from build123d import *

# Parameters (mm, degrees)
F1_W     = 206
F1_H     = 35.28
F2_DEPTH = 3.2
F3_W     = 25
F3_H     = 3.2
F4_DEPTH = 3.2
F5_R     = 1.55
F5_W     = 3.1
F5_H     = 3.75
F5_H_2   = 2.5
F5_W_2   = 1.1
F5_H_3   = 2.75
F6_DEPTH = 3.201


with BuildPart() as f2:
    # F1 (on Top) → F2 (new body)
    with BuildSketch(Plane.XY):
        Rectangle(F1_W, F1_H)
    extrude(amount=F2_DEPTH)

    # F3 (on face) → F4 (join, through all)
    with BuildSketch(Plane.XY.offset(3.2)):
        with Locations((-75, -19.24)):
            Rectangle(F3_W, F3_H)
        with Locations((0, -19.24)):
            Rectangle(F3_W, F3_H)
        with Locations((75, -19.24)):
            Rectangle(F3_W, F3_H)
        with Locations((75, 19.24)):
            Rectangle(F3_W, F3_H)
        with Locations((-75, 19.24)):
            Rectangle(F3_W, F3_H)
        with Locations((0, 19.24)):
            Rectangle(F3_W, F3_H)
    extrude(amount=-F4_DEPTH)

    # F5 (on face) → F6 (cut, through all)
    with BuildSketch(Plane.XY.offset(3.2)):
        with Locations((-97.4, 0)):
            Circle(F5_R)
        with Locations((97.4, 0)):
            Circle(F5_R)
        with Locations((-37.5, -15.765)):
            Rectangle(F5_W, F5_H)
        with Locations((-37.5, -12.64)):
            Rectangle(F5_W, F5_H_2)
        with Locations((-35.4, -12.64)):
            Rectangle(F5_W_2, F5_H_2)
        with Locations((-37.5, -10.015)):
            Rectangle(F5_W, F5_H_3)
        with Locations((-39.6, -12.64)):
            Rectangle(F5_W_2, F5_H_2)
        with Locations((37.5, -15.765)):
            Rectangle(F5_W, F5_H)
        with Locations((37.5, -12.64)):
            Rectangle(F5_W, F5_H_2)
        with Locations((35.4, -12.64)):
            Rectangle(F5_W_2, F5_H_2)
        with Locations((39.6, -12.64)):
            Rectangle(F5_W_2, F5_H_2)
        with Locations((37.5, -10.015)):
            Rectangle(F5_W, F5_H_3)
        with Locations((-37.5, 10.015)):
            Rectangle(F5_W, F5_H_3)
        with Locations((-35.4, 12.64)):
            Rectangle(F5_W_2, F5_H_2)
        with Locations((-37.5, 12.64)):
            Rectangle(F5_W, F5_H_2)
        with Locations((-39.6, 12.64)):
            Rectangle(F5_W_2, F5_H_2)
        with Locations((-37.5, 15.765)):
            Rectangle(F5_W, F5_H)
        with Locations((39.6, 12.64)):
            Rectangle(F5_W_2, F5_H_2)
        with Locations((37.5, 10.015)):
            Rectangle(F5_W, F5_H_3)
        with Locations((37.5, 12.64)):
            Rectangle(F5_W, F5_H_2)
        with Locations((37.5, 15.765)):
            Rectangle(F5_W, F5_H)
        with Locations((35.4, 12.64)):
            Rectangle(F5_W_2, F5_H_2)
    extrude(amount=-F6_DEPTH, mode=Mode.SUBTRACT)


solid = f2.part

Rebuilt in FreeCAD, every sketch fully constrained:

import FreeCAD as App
import Part
import Sketcher
Q = App.Units.Quantity


def add_polygon(sketch, points):
    """Adds a closed chain of lines whose ends are joined by coincident constraints."""
    first, n = sketch.GeometryCount, len(points)
    for a, b in zip(points, points[1:] + points[:1]):
        sketch.addGeometry(Part.LineSegment(App.Vector(*a, 0), App.Vector(*b, 0)), False)
    for i in range(n):
        sketch.addConstraint(Sketcher.Constraint("Coincident", first + i, 2, first + (i + 1) % n, 1))

doc = App.newDocument("Part")
params = doc.addObject("Spreadsheet::Sheet", "Params")
for row, (alias, value) in enumerate([
    ("sketch1_width", "206 mm"),
    ("sketch1_height", "35.28 mm"),
    ("pad1_length", "3.2 mm"),
    ("sketch2_width", "25 mm"),
    ("sketch2_height", "3.2 mm"),
    ("sketch3_diameter", "3.1 mm"),
    ("sketch3_width", "3.1 mm"),
    ("sketch3_width2", "1.1 mm"),
    ("sketch3_height", "2.5 mm"),
    ("sketch3_height2", "3.75 mm"),
], start=1):
    params.set(f"A{row}", alias)
    params.set(f"B{row}", "=" + value)
    params.setAlias(f"B{row}", alias)

body = doc.addObject("PartDesign::Body", "Body")

# Sketch on XY plane
sketch1 = body.newObject("Sketcher::SketchObject", "Sketch")
sketch1.AttachmentSupport = (doc.getObject("XY_Plane"), [""])
sketch1.MapMode = "FlatFace"
add_polygon(sketch1, [(-103, 18), (-103, -18), (103, -18), (103, 18)])  # lines 0-3
sketch1.addConstraint(Sketcher.Constraint("Vertical", 0))
sketch1.addConstraint(Sketcher.Constraint("Horizontal", 1))
sketch1.addConstraint(Sketcher.Constraint("Vertical", 2))
sketch1.addConstraint(Sketcher.Constraint("Horizontal", 3))
sketch1.addConstraint(Sketcher.Constraint("Symmetric", 0, 2, 2, 2, -1, 1))
sketch1.addConstraint(Sketcher.Constraint("DistanceX", 1, 1, 1, 2, Q("206 mm")))
sketch1.addConstraint(Sketcher.Constraint("DistanceY", 0, 2, 0, 1, Q("35.28 mm")))
sketch1.setExpression("Constraints[9]", "Params.sketch1_width")
sketch1.setExpression("Constraints[10]", "Params.sketch1_height")
pad1 = body.newObject("PartDesign::Pad", "Pad")
pad1.Profile = sketch1
pad1.setExpression("Length", "Params.pad1_length")

# Sketch on XY plane
sketch2 = body.newObject("Sketcher::SketchObject", "Sketch001")
sketch2.AttachmentSupport = (doc.getObject("XY_Plane"), [""])
sketch2.MapMode = "FlatFace"
sketch2.AttachmentOffset = App.Placement(App.Vector(0, 0, 3.2), App.Rotation())
add_polygon(sketch2, [(-87.5, -17.6), (-87.5, -20.8), (-62.5, -20.8), (-62.5, -17.6)])  # lines 0-3
add_polygon(sketch2, [(-12.5, -17.6), (-12.5, -20.8), (12.5, -20.8), (12.5, -17.6)])  # lines 4-7
add_polygon(sketch2, [(62.5, -17.6), (62.5, -20.8), (87.5, -20.8), (87.5, -17.6)])  # lines 8-11
add_polygon(sketch2, [(62.5, 20.8), (62.5, 17.6), (87.5, 17.6), (87.5, 20.8)])  # lines 12-15
add_polygon(sketch2, [(-87.5, 20.8), (-87.5, 17.6), (-62.5, 17.6), (-62.5, 20.8)])  # lines 16-19
add_polygon(sketch2, [(-12.5, 20.8), (-12.5, 17.6), (12.5, 17.6), (12.5, 20.8)])  # lines 20-23
sketch2.addConstraint(Sketcher.Constraint("Vertical", 0))
sketch2.addConstraint(Sketcher.Constraint("Horizontal", 1))
sketch2.addConstraint(Sketcher.Constraint("Vertical", 2))
sketch2.addConstraint(Sketcher.Constraint("Horizontal", 3))
sketch2.addConstraint(Sketcher.Constraint("Vertical", 4))
sketch2.addConstraint(Sketcher.Constraint("Horizontal", 5))
sketch2.addConstraint(Sketcher.Constraint("Vertical", 6))
sketch2.addConstraint(Sketcher.Constraint("Horizontal", 7))
sketch2.addConstraint(Sketcher.Constraint("Vertical", 8))
sketch2.addConstraint(Sketcher.Constraint("Horizontal", 9))
sketch2.addConstraint(Sketcher.Constraint("Vertical", 10))
sketch2.addConstraint(Sketcher.Constraint("Horizontal", 11))
sketch2.addConstraint(Sketcher.Constraint("Vertical", 12))
sketch2.addConstraint(Sketcher.Constraint("Horizontal", 13))
sketch2.addConstraint(Sketcher.Constraint("Vertical", 14))
sketch2.addConstraint(Sketcher.Constraint("Horizontal", 15))
sketch2.addConstraint(Sketcher.Constraint("Vertical", 16))
sketch2.addConstraint(Sketcher.Constraint("Horizontal", 17))
sketch2.addConstraint(Sketcher.Constraint("Vertical", 18))
sketch2.addConstraint(Sketcher.Constraint("Horizontal", 19))
sketch2.addConstraint(Sketcher.Constraint("Vertical", 20))
sketch2.addConstraint(Sketcher.Constraint("Horizontal", 21))
sketch2.addConstraint(Sketcher.Constraint("Vertical", 22))
sketch2.addConstraint(Sketcher.Constraint("Horizontal", 23))
sketch2.addConstraint(Sketcher.Constraint("Symmetric", 2, 2, 12, 2, -1, 1))
sketch2.addConstraint(Sketcher.Constraint("Symmetric", 0, 2, 14, 2, -1, 1))
sketch2.addConstraint(Sketcher.Constraint("Symmetric", 10, 2, 16, 2, -1, 1))
sketch2.addConstraint(Sketcher.Constraint("Symmetric", 8, 2, 18, 2, -1, 1))
sketch2.addConstraint(Sketcher.Constraint("Symmetric", 6, 2, 20, 2, -1, 1))
sketch2.addConstraint(Sketcher.Constraint("Symmetric", 4, 2, 22, 2, -1, 1))
sketch2.addConstraint(Sketcher.Constraint("Symmetric", 1, 2, 8, 2, -2))
sketch2.addConstraint(Sketcher.Constraint("Symmetric", 3, 2, 10, 2, -2))
sketch2.addConstraint(Sketcher.Constraint("Horizontal", 1, 2, 4, 2))
sketch2.addConstraint(Sketcher.Constraint("Horizontal", 3, 2, 6, 2))
sketch2.addConstraint(Sketcher.Constraint("Vertical", 7, 2, 20, 2))
sketch2.addConstraint(Sketcher.Constraint("Equal", 3, 5))
sketch2.addConstraint(Sketcher.Constraint("DistanceX", 1, 1, 1, 2, Q("25 mm")))
sketch2.addConstraint(Sketcher.Constraint("DistanceY", 0, 2, 0, 1, Q("3.2 mm")))
sketch2.addConstraint(Sketcher.Constraint("DistanceX", 1, 2, 4, 2, Q("50 mm")))
sketch2.addConstraint(Sketcher.Constraint("DistanceY", 0, 2, -1, 1, Q("20.84 mm")))
sketch2.setExpression("Constraints[60]", "Params.sketch2_width")
sketch2.setExpression("Constraints[61]", "Params.sketch2_height")
pad2 = body.newObject("PartDesign::Pad", "Pad001")
pad2.Profile = sketch2
pad2.Type = "UpToLast"
pad2.Reversed = True

# Sketch on XY plane
sketch3 = body.newObject("Sketcher::SketchObject", "Sketch002")
sketch3.AttachmentSupport = (doc.getObject("XY_Plane"), [""])
sketch3.MapMode = "FlatFace"
sketch3.AttachmentOffset = App.Placement(App.Vector(0, 0, 3.2), App.Rotation())
sketch3.addGeometry(Part.Circle(App.Vector(-97.4, 0, 0), App.Vector(0, 0, 1), 1.6), False)  # 0
sketch3.addGeometry(Part.Circle(App.Vector(97.4, 0, 0), App.Vector(0, 0, 1), 1.6), False)  # 1
add_polygon(sketch3, [(-39, -17.6), (-36, -17.6), (-36, -13.9), (-34.9, -13.9), (-34.9, -11.4), (-36, -11.4), (-36, -8.6), (-39, -8.6), (-39, -11.4), (-40.1, -11.4), (-40.1, -13.9), (-39, -13.9)])  # lines 2-13
add_polygon(sketch3, [(36, -17.6), (39, -17.6), (39, -13.9), (40.1, -13.9), (40.1, -11.4), (39, -11.4), (39, -8.6), (36, -8.6), (36, -11.4), (34.9, -11.4), (34.9, -13.9), (36, -13.9)])  # lines 14-25
add_polygon(sketch3, [(-39, 8.6), (-36, 8.6), (-36, 11.4), (-34.9, 11.4), (-34.9, 13.9), (-36, 13.9), (-36, 17.6), (-39, 17.6), (-39, 13.9), (-40.1, 13.9), (-40.1, 11.4), (-39, 11.4)])  # lines 26-37
add_polygon(sketch3, [(39, 11.4), (40.1, 11.4), (40.1, 13.9), (39, 13.9), (39, 17.6), (36, 17.6), (36, 13.9), (34.9, 13.9), (34.9, 11.4), (36, 11.4), (36, 8.6), (39, 8.6)])  # lines 38-49
sketch3.addConstraint(Sketcher.Constraint("Horizontal", 2))
sketch3.addConstraint(Sketcher.Constraint("Vertical", 3))
sketch3.addConstraint(Sketcher.Constraint("Horizontal", 4))
sketch3.addConstraint(Sketcher.Constraint("Vertical", 5))
sketch3.addConstraint(Sketcher.Constraint("Horizontal", 6))
sketch3.addConstraint(Sketcher.Constraint("Vertical", 7))
sketch3.addConstraint(Sketcher.Constraint("Horizontal", 8))
sketch3.addConstraint(Sketcher.Constraint("Vertical", 9))
sketch3.addConstraint(Sketcher.Constraint("Horizontal", 10))
sketch3.addConstraint(Sketcher.Constraint("Vertical", 11))
sketch3.addConstraint(Sketcher.Constraint("Horizontal", 12))
sketch3.addConstraint(Sketcher.Constraint("Vertical", 13))
sketch3.addConstraint(Sketcher.Constraint("Horizontal", 14))
sketch3.addConstraint(Sketcher.Constraint("Vertical", 15))
sketch3.addConstraint(Sketcher.Constraint("Horizontal", 16))
sketch3.addConstraint(Sketcher.Constraint("Vertical", 17))
sketch3.addConstraint(Sketcher.Constraint("Horizontal", 18))
sketch3.addConstraint(Sketcher.Constraint("Vertical", 19))
sketch3.addConstraint(Sketcher.Constraint("Horizontal", 20))
sketch3.addConstraint(Sketcher.Constraint("Vertical", 21))
sketch3.addConstraint(Sketcher.Constraint("Horizontal", 22))
sketch3.addConstraint(Sketcher.Constraint("Vertical", 23))
sketch3.addConstraint(Sketcher.Constraint("Horizontal", 24))
sketch3.addConstraint(Sketcher.Constraint("Vertical", 25))
sketch3.addConstraint(Sketcher.Constraint("Horizontal", 26))
sketch3.addConstraint(Sketcher.Constraint("Vertical", 27))
sketch3.addConstraint(Sketcher.Constraint("Horizontal", 28))
sketch3.addConstraint(Sketcher.Constraint("Vertical", 29))
sketch3.addConstraint(Sketcher.Constraint("Horizontal", 30))
sketch3.addConstraint(Sketcher.Constraint("Vertical", 31))
sketch3.addConstraint(Sketcher.Constraint("Horizontal", 32))
sketch3.addConstraint(Sketcher.Constraint("Vertical", 33))
sketch3.addConstraint(Sketcher.Constraint("Horizontal", 34))
sketch3.addConstraint(Sketcher.Constraint("Vertical", 35))
sketch3.addConstraint(Sketcher.Constraint("Horizontal", 36))
sketch3.addConstraint(Sketcher.Constraint("Vertical", 37))
sketch3.addConstraint(Sketcher.Constraint("Horizontal", 38))
sketch3.addConstraint(Sketcher.Constraint("Vertical", 39))
sketch3.addConstraint(Sketcher.Constraint("Horizontal", 40))
sketch3.addConstraint(Sketcher.Constraint("Vertical", 41))
sketch3.addConstraint(Sketcher.Constraint("Horizontal", 42))
sketch3.addConstraint(Sketcher.Constraint("Vertical", 43))
sketch3.addConstraint(Sketcher.Constraint("Horizontal", 44))
sketch3.addConstraint(Sketcher.Constraint("Vertical", 45))
sketch3.addConstraint(Sketcher.Constraint("Horizontal", 46))
sketch3.addConstraint(Sketcher.Constraint("Vertical", 47))
sketch3.addConstraint(Sketcher.Constraint("Horizontal", 48))
sketch3.addConstraint(Sketcher.Constraint("Vertical", 49))
sketch3.addConstraint(Sketcher.Constraint("Equal", 0, 1))
sketch3.addConstraint(Sketcher.Constraint("Symmetric", 0, 3, 1, 3, -1, 1))
sketch3.addConstraint(Sketcher.Constraint("Symmetric", 20, 2, 26, 2, -1, 1))
sketch3.addConstraint(Sketcher.Constraint("Symmetric", 22, 2, 28, 2, -1, 1))
sketch3.addConstraint(Sketcher.Constraint("Symmetric", 24, 2, 30, 2, -1, 1))
sketch3.addConstraint(Sketcher.Constraint("Symmetric", 14, 2, 32, 2, -1, 1))
sketch3.addConstraint(Sketcher.Constraint("Symmetric", 16, 2, 34, 2, -1, 1))
sketch3.addConstraint(Sketcher.Constraint("Symmetric", 18, 2, 36, 2, -1, 1))
sketch3.addConstraint(Sketcher.Constraint("Symmetric", 10, 2, 38, 2, -1, 1))
sketch3.addConstraint(Sketcher.Constraint("Symmetric", 12, 2, 40, 2, -1, 1))
sketch3.addConstraint(Sketcher.Constraint("Symmetric", 2, 2, 42, 2, -1, 1))
sketch3.addConstraint(Sketcher.Constraint("Symmetric", 4, 2, 44, 2, -1, 1))
sketch3.addConstraint(Sketcher.Constraint("Symmetric", 6, 2, 46, 2, -1, 1))
sketch3.addConstraint(Sketcher.Constraint("Symmetric", 8, 2, 48, 2, -1, 1))
sketch3.addConstraint(Sketcher.Constraint("Symmetric", 13, 2, 14, 2, -2))
sketch3.addConstraint(Sketcher.Constraint("Symmetric", 11, 2, 16, 2, -2))
sketch3.addConstraint(Sketcher.Constraint("Symmetric", 9, 2, 18, 2, -2))
sketch3.addConstraint(Sketcher.Constraint("Symmetric", 7, 2, 20, 2, -2))
sketch3.addConstraint(Sketcher.Constraint("Symmetric", 5, 2, 22, 2, -2))
sketch3.addConstraint(Sketcher.Constraint("Symmetric", 3, 2, 24, 2, -2))
sketch3.addConstraint(Sketcher.Constraint("PointOnObject", 0, 3, -1))
sketch3.addConstraint(Sketcher.Constraint("Horizontal", 6, 2, 9, 2))
sketch3.addConstraint(Sketcher.Constraint("Horizontal", 4, 2, 11, 2))
sketch3.addConstraint(Sketcher.Constraint("Vertical", 3, 2, 6, 2))
sketch3.addConstraint(Sketcher.Constraint("Vertical", 9, 2, 12, 2))
sketch3.addConstraint(Sketcher.Constraint("Equal", 6, 10))
sketch3.addConstraint(Sketcher.Constraint("Diameter", 0, Q("3.1 mm")))
sketch3.addConstraint(Sketcher.Constraint("DistanceX", 2, 1, 2, 2, Q("3.1 mm")))
sketch3.addConstraint(Sketcher.Constraint("DistanceX", 4, 1, 4, 2, Q("1.1 mm")))
sketch3.addConstraint(Sketcher.Constraint("DistanceY", 5, 1, 5, 2, Q("2.5 mm")))
sketch3.addConstraint(Sketcher.Constraint("DistanceY", 2, 2, 7, 2, Q("9 mm")))
sketch3.addConstraint(Sketcher.Constraint("DistanceX", 2, 2, 14, 2, Q("75 mm")))
sketch3.addConstraint(Sketcher.Constraint("DistanceY", 3, 1, 3, 2, Q("3.75 mm")))
sketch3.addConstraint(Sketcher.Constraint("DistanceX", 0, 3, -1, 1, Q("97.4 mm")))
sketch3.addConstraint(Sketcher.Constraint("DistanceY", 2, 2, -1, 1, Q("17.64 mm")))
sketch3.setExpression("Constraints[122]", "Params.sketch3_diameter")
sketch3.setExpression("Constraints[123]", "Params.sketch3_width")
sketch3.setExpression("Constraints[124]", "Params.sketch3_width2")
sketch3.setExpression("Constraints[125]", "Params.sketch3_height")
sketch3.setExpression("Constraints[128]", "Params.sketch3_height2")
pocket1 = body.newObject("PartDesign::Pocket", "Pocket")
pocket1.Profile = sketch3
pocket1.Type = "ThroughAll"

doc.recompute()
